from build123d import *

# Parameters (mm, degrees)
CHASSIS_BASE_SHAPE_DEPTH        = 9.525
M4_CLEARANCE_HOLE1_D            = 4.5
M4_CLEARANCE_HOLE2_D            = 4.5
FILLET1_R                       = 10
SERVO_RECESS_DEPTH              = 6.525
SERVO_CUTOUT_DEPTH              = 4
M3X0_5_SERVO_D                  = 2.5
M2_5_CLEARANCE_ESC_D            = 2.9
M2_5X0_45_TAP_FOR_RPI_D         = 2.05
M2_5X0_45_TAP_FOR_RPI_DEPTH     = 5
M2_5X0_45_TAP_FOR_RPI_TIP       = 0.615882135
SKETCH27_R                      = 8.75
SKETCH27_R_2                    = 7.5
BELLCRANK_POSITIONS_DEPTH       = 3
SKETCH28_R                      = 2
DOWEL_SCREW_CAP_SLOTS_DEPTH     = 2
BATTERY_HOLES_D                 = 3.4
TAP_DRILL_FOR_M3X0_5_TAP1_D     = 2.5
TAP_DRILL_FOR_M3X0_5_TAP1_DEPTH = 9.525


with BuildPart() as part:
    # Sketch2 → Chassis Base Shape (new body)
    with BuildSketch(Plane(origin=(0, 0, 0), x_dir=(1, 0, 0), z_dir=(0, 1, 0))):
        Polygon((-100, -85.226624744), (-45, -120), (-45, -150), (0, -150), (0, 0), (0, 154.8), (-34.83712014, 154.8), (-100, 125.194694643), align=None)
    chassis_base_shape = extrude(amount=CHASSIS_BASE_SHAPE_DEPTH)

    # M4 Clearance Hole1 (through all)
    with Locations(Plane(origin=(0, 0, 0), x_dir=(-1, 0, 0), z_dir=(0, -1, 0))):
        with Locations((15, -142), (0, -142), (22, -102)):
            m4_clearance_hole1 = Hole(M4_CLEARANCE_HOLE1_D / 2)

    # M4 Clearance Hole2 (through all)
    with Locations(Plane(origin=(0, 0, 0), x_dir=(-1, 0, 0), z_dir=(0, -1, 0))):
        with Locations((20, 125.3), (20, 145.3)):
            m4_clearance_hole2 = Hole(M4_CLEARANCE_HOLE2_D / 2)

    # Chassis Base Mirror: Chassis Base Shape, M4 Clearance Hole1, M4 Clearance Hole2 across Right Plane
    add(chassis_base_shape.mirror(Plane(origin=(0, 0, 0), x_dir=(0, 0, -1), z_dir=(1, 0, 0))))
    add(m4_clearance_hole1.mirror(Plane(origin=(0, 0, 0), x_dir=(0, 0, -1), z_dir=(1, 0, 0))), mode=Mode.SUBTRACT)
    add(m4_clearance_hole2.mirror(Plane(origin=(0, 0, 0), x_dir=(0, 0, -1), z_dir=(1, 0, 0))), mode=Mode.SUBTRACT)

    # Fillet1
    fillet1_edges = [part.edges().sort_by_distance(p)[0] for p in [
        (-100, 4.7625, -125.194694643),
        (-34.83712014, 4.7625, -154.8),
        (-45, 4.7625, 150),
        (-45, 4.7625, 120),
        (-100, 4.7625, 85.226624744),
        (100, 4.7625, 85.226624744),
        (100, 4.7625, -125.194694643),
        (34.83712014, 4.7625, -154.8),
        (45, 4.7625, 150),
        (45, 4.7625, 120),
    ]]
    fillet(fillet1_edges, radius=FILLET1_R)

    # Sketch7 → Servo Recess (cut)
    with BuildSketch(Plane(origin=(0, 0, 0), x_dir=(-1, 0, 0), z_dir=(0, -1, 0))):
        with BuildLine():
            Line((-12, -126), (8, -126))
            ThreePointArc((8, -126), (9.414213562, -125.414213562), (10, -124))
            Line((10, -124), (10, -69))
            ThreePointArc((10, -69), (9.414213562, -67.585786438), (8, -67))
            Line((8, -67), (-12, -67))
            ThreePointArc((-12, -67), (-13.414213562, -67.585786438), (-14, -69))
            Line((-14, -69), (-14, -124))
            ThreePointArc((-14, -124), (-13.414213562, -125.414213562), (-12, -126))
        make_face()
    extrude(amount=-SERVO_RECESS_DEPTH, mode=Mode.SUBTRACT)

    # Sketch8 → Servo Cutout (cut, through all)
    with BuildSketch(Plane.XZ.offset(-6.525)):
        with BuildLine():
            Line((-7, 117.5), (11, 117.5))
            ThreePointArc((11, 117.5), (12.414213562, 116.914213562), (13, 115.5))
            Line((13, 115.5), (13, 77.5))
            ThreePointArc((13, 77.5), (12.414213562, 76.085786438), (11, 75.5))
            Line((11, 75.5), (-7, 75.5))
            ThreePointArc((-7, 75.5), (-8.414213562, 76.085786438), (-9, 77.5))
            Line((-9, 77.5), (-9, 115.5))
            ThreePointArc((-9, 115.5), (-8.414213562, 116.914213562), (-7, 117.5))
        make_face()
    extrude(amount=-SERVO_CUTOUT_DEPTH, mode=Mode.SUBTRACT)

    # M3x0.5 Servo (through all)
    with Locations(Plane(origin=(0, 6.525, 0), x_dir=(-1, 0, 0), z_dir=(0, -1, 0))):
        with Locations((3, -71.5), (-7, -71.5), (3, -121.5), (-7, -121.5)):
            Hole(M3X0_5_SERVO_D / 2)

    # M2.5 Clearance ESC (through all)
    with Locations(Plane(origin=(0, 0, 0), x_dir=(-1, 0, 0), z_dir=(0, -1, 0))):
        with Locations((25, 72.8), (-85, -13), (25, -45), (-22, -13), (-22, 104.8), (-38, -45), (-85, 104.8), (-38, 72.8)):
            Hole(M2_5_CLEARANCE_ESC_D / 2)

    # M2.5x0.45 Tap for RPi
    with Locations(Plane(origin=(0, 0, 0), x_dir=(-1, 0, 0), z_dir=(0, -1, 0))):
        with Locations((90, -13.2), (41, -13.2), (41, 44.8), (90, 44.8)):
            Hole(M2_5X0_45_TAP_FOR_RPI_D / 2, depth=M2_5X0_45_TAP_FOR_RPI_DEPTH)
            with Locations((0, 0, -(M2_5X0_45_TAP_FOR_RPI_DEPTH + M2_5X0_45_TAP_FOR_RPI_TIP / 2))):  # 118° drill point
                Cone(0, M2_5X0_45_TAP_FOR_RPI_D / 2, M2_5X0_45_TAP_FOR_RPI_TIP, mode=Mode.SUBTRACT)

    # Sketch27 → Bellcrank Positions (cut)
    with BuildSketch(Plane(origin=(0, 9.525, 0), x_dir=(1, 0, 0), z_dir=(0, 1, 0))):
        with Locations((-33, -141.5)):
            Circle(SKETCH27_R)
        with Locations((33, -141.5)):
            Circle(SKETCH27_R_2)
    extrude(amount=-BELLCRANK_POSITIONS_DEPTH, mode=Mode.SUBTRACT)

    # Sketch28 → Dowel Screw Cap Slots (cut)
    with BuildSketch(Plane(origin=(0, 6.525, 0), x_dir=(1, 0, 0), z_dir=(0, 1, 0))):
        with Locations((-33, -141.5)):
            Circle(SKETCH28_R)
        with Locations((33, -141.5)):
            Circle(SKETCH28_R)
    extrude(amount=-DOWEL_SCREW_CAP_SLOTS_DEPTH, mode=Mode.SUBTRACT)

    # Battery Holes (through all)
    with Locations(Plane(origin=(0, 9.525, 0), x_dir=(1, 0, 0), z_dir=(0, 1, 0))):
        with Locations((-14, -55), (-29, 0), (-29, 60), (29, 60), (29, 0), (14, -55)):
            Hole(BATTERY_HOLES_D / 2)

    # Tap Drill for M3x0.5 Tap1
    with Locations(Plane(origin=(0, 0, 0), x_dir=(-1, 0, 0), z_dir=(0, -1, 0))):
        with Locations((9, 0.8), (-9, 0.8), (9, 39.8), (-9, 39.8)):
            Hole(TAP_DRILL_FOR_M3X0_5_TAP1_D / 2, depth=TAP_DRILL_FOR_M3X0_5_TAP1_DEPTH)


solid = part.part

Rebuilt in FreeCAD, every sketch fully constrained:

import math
import FreeCAD as App
import Part
import Sketcher
from FreeCAD import Vector


def edges_at(feature, points):
    """Names of the edges that pass closest to the given points."""
    edges = feature.Shape.Edges
    near = lambda p: min(range(len(edges)), key=lambda i: edges[i].distToShape(Part.Vertex(*p))[0])
    return sorted({f"Edge{near(p) + 1}" for p in points})

doc = App.newDocument("Part")
body = doc.addObject("PartDesign::Body", "Body")

# Sketch on XZ plane
sketch1 = body.newObject("Sketcher::SketchObject", "Sketch")
sketch1.AttachmentSupport = (doc.getObject("XZ_Plane"), [""])
sketch1.MapMode = "FlatFace"
sketch1.addGeometry([
    Part.LineSegment(Vector(-100, 85.226625, 0), Vector(-45, 120, 0)),  # 0
    Part.LineSegment(Vector(-45, 120, 0), Vector(-45, 150, 0)),  # 1
    Part.LineSegment(Vector(-45, 150, 0), Vector(0, 150, 0)),  # 2
    Part.LineSegment(Vector(0, 150, 0), Vector(0, -154.8, 0)),  # 3
    Part.LineSegment(Vector(0, -154.8, 0), Vector(-34.83712, -154.8, 0)),  # 4
    Part.LineSegment(Vector(-34.83712, -154.8, 0), Vector(-100, -125.194695, 0)),  # 5
    Part.LineSegment(Vector(-100, -125.194695, 0), Vector(-100, 85.226625, 0)),  # 6
], False)
sketch1.addConstraint([
    Sketcher.Constraint("Coincident", 0, 2, 1, 1),
    Sketcher.Constraint("Coincident", 1, 2, 2, 1),
    Sketcher.Constraint("Coincident", 2, 2, 3, 1),
    Sketcher.Constraint("Coincident", 3, 2, 4, 1),
    Sketcher.Constraint("Coincident", 4, 2, 5, 1),
    Sketcher.Constraint("Coincident", 5, 2, 6, 1),
    Sketcher.Constraint("Coincident", 6, 2, 0, 1),
    Sketcher.Constraint("Vertical", 1),
    Sketcher.Constraint("Horizontal", 2),
    Sketcher.Constraint("Vertical", 3),
    Sketcher.Constraint("Horizontal", 4),
    Sketcher.Constraint("Vertical", 6),
    Sketcher.Constraint("PointOnObject", 2, 2, -2),
    Sketcher.Constraint("DistanceX", 2, 1, 2, 2, 45.0),
    Sketcher.Constraint("DistanceY", 1, 1, 1, 2, 30.0),
    Sketcher.Constraint("DistanceY", 3, 2, 3, 1, 304.8),
    Sketcher.Constraint("DistanceY", -1, 1, 0, 2, 120.0),
    Sketcher.Constraint("DistanceX", 5, 2, -1, 1, 100.0),
    Sketcher.Constraint("DistanceX", 4, 2, 4, 1, 34.83712),
    Sketcher.Constraint("DistanceY", 6, 1, 6, 2, 210.421319),
    Sketcher.Constraint("Distance", 0, 65.070636),
])
pad1 = body.newObject("PartDesign::Pad", "Pad")
pad1.Profile = sketch1
pad1.Length = 9.525
pad1.Reversed = True

# Sketch on XZ plane
sketch2 = body.newObject("Sketcher::SketchObject", "Sketch001")
sketch2.AttachmentSupport = (doc.getObject("XZ_Plane"), [""])
sketch2.MapMode = "FlatFace"
sketch2.addGeometry([
    Part.Circle(Vector(-15, 142, 0), Vector(0, 0, 1), 2.25),
    Part.Circle(Vector(0, 142, 0), Vector(0, 0, 1), 2.25),
    Part.Circle(Vector(-22, 102, 0), Vector(0, 0, 1), 2.25),
], False)
sketch2.addConstraint([
    Sketcher.Constraint("Equal", 0, 1),
    Sketcher.Constraint("Equal", 1, 2),
    Sketcher.Constraint("PointOnObject", 1, 3, -2),
    Sketcher.Constraint("Horizontal", 0, 3, 1, 3),
    Sketcher.Constraint("Diameter", 0, 4.5),
    Sketcher.Constraint("DistanceX", 0, 3, -1, 1, 15.0),
    Sketcher.Constraint("DistanceY", -1, 1, 0, 3, 142.0),
    Sketcher.Constraint("DistanceX", 2, 3, -1, 1, 22.0),
    Sketcher.Constraint("DistanceY", -1, 1, 2, 3, 102.0),
])
doc.recompute()
hole = body.newObject("PartDesign::Hole", "Hole")
hole.Profile = sketch2
hole.ThreadType = "None"
hole.Diameter = 4.5
hole.DepthType = "ThroughAll"

# Sketch on XZ plane
sketch3 = body.newObject("Sketcher::SketchObject", "Sketch002")
sketch3.AttachmentSupport = (doc.getObject("XZ_Plane"), [""])
sketch3.MapMode = "FlatFace"
sketch3.addGeometry([
    Part.Circle(Vector(-20, -125.3, 0), Vector(0, 0, 1), 2.25),
    Part.Circle(Vector(-20, -145.3, 0), Vector(0, 0, 1), 2.25),
], False)
sketch3.addConstraint([
    Sketcher.Constraint("Equal", 0, 1),
    Sketcher.Constraint("Vertical", 0, 3, 1, 3),
    Sketcher.Constraint("Diameter", 0, 4.5),
    Sketcher.Constraint("DistanceX", 0, 3, -1, 1, 20.0),
    Sketcher.Constraint("DistanceY", 1, 3, 0, 3, 20.0),
    Sketcher.Constraint("DistanceY", 0, 3, -1, 1, 125.3),
])
doc.recompute()
hole2 = body.newObject("PartDesign::Hole", "Hole001")
hole2.Profile = sketch3
hole2.ThreadType = "None"
hole2.Diameter = 4.5
hole2.DepthType = "ThroughAll"
doc.recompute()

mirrored = body.newObject("PartDesign::Mirrored", "Mirrored")
mirrored.Originals = [pad1, hole, hole2]
mirrored.MirrorPlane = (doc.getObject("YZ_Plane"), [""])
body.Tip = mirrored
doc.recompute()

fillet = body.newObject("PartDesign::Fillet", "Fillet")
fillet.Base = (mirrored, edges_at(mirrored, [
    (-100, 4.763, -125.195),
    (-34.837, 4.763, -154.8),
    (-45, 4.763, 150),
    (-45, 4.763, 120),
    (-100, 4.763, 85.227),
    (100, 4.763, 85.227),
    (100, 4.763, -125.195),
    (34.837, 4.763, -154.8),
    (45, 4.763, 150),
    (45, 4.763, 120),
]))
fillet.Radius = 10

# Sketch on XZ plane
sketch4 = body.newObject("Sketcher::SketchObject", "Sketch003")
sketch4.AttachmentSupport = (doc.getObject("XZ_Plane"), [""])
sketch4.MapMode = "FlatFace"
sketch4.addGeometry([
    Part.LineSegment(Vector(12, 126, 0), Vector(-8, 126, 0)),  # 0
    Part.ArcOfCircle(Part.Circle(Vector(-8, 124, 0), Vector(0, 0, 1), 2), math.radians(90), math.radians(180)),  # 1
    Part.LineSegment(Vector(-10, 124, 0), Vector(-10, 69, 0)),  # 2
    Part.ArcOfCircle(Part.Circle(Vector(-8, 69, 0), Vector(0, 0, 1), 2), math.radians(-180), math.radians(-90)),  # 3
    Part.LineSegment(Vector(-8, 67, 0), Vector(12, 67, 0)),  # 4
    Part.ArcOfCircle(Part.Circle(Vector(12, 69, 0), Vector(0, 0, 1), 2), math.radians(-90), math.radians(0)),  # 5
    Part.LineSegment(Vector(14, 69, 0), Vector(14, 124, 0)),  # 6
    Part.ArcOfCircle(Part.Circle(Vector(12, 124, 0), Vector(0, 0, 1), 2), math.radians(0), math.radians(90)),  # 7
], False)
sketch4.addConstraint([
    Sketcher.Constraint("Tangent", 0, 2, 1, 1),
    Sketcher.Constraint("Tangent", 1, 2, 2, 1),
    Sketcher.Constraint("Tangent", 2, 2, 3, 1),
    Sketcher.Constraint("Tangent", 3, 2, 4, 1),
    Sketcher.Constraint("Tangent", 4, 2, 5, 1),
    Sketcher.Constraint("Tangent", 5, 2, 6, 1),
    Sketcher.Constraint("Tangent", 6, 2, 7, 1),
    Sketcher.Constraint("Tangent", 7, 2, 0, 1),
    Sketcher.Constraint("Horizontal", 0),
    Sketcher.Constraint("Vertical", 2),
    Sketcher.Constraint("Horizontal", 4),
    Sketcher.Constraint("Vertical", 6),
    Sketcher.Constraint("Equal", 1, 3),
    Sketcher.Constraint("Equal", 3, 5),
    Sketcher.Constraint("Equal", 5, 7),
    Sketcher.Constraint("Radius", 1, 2.0),
    Sketcher.Constraint("DistanceX", 0, 2, 0, 1, 20.0),
    Sketcher.Constraint("DistanceY", 2, 2, 2, 1, 55.0),
    Sketcher.Constraint("DistanceX", 1, 3, -1, 1, 8.0),
    Sketcher.Constraint("DistanceY", -1, 1, 1, 3, 124.0),
])
pocket1 = body.newObject("PartDesign::Pocket", "Pocket")
pocket1.Profile = sketch4
pocket1.Length = 6.525

# Sketch on XZ plane
sketch5 = body.newObject("Sketcher::SketchObject", "Sketch004")
sketch5.AttachmentSupport = (doc.getObject("XZ_Plane"), [""])
sketch5.MapMode = "FlatFace"
sketch5.AttachmentOffset = App.Placement(Vector(0, 0, -6.525), App.Rotation())
sketch5.addGeometry([
    Part.LineSegment(Vector(11, 117.5, 0), Vector(-7, 117.5, 0)),  # 0
    Part.ArcOfCircle(Part.Circle(Vector(-7, 115.5, 0), Vector(0, 0, 1), 2), math.radians(90), math.radians(180)),  # 1
    Part.LineSegment(Vector(-9, 115.5, 0), Vector(-9, 77.5, 0)),  # 2
    Part.ArcOfCircle(Part.Circle(Vector(-7, 77.5, 0), Vector(0, 0, 1), 2), math.radians(-180), math.radians(-90)),  # 3
    Part.LineSegment(Vector(-7, 75.5, 0), Vector(11, 75.5, 0)),  # 4
    Part.ArcOfCircle(Part.Circle(Vector(11, 77.5, 0), Vector(0, 0, 1), 2), math.radians(-90), math.radians(0)),  # 5
    Part.LineSegment(Vector(13, 77.5, 0), Vector(13, 115.5, 0)),  # 6
    Part.ArcOfCircle(Part.Circle(Vector(11, 115.5, 0), Vector(0, 0, 1), 2), math.radians(0), math.radians(90)),  # 7
], False)
sketch5.addConstraint([
    Sketcher.Constraint("Tangent", 0, 2, 1, 1),
    Sketcher.Constraint("Tangent", 1, 2, 2, 1),
    Sketcher.Constraint("Tangent", 2, 2, 3, 1),
    Sketcher.Constraint("Tangent", 3, 2, 4, 1),
    Sketcher.Constraint("Tangent", 4, 2, 5, 1),
    Sketcher.Constraint("Tangent", 5, 2, 6, 1),
    Sketcher.Constraint("Tangent", 6, 2, 7, 1),
    Sketcher.Constraint("Tangent", 7, 2, 0, 1),
    Sketcher.Constraint("Horizontal", 0),
    Sketcher.Constraint("Vertical", 2),
    Sketcher.Constraint("Horizontal", 4),
    Sketcher.Constraint("Vertical", 6),
    Sketcher.Constraint("Equal", 1, 3),
    Sketcher.Constraint("Equal", 3, 5),
    Sketcher.Constraint("Equal", 5, 7),
    Sketcher.Constraint("Radius", 1, 2.0),
    Sketcher.Constraint("DistanceX", 0, 2, 0, 1, 18.0),
    Sketcher.Constraint("DistanceY", 2, 2, 2, 1, 38.0),
    Sketcher.Constraint("DistanceX", 1, 3, -1, 1, 7.0),
    Sketcher.Constraint("DistanceY", -1, 1, 1, 3, 115.5),
])
pocket2 = body.newObject("PartDesign::Pocket", "Pocket001")
pocket2.Profile = sketch5
pocket2.Type = "ThroughAll"

# Sketch on XZ plane
sketch6 = body.newObject("Sketcher::SketchObject", "Sketch005")
sketch6.AttachmentSupport = (doc.getObject("XZ_Plane"), [""])
sketch6.MapMode = "FlatFace"
sketch6.AttachmentOffset = App.Placement(Vector(0, 0, -6.525), App.Rotation())
sketch6.addGeometry([
    Part.Circle(Vector(-3, 71.5, 0), Vector(0, 0, 1), 1.25),
    Part.Circle(Vector(7, 71.5, 0), Vector(0, 0, 1), 1.25),
    Part.Circle(Vector(-3, 121.5, 0), Vector(0, 0, 1), 1.25),
    Part.Circle(Vector(7, 121.5, 0), Vector(0, 0, 1), 1.25),
], False)
sketch6.addConstraint([
    Sketcher.Constraint("Equal", 0, 1),
    Sketcher.Constraint("Equal", 1, 2),
    Sketcher.Constraint("Equal", 2, 3),
    Sketcher.Constraint("Horizontal", 0, 3, 1, 3),
    Sketcher.Constraint("Horizontal", 2, 3, 3, 3),
    Sketcher.Constraint("Vertical", 0, 3, 2, 3),
    Sketcher.Constraint("Vertical", 1, 3, 3, 3),
    Sketcher.Constraint("Diameter", 0, 2.5),
    Sketcher.Constraint("DistanceX", 0, 3, -1, 1, 3.0),
    Sketcher.Constraint("DistanceX", -1, 1, 1, 3, 7.0),
    Sketcher.Constraint("DistanceY", 0, 3, 2, 3, 50.0),
    Sketcher.Constraint("DistanceY", -1, 1, 0, 3, 71.5),
])
doc.recompute()
hole3 = body.newObject("PartDesign::Hole", "Hole002")
hole3.Profile = sketch6
hole3.ThreadType = "None"
hole3.Diameter = 2.5
hole3.DepthType = "ThroughAll"

# Sketch on XZ plane
sketch7 = body.newObject("Sketcher::SketchObject", "Sketch006")
sketch7.AttachmentSupport = (doc.getObject("XZ_Plane"), [""])
sketch7.MapMode = "FlatFace"
sketch7.addGeometry([
    Part.Circle(Vector(-25, -72.8, 0), Vector(0, 0, 1), 1.45),  # 0
    Part.Circle(Vector(85, 13, 0), Vector(0, 0, 1), 1.45),  # 1
    Part.Circle(Vector(-25, 45, 0), Vector(0, 0, 1), 1.45),  # 2
    Part.Circle(Vector(22, 13, 0), Vector(0, 0, 1), 1.45),  # 3
    Part.Circle(Vector(22, -104.8, 0), Vector(0, 0, 1), 1.45),  # 4
    Part.Circle(Vector(38, 45, 0), Vector(0, 0, 1), 1.45),  # 5
    Part.Circle(Vector(85, -104.8, 0), Vector(0, 0, 1), 1.45),  # 6
    Part.Circle(Vector(38, -72.8, 0), Vector(0, 0, 1), 1.45),  # 7
], False)
sketch7.addConstraint([
    Sketcher.Constraint("Equal", 0, 1),
    Sketcher.Constraint("Equal", 1, 2),
    Sketcher.Constraint("Equal", 2, 3),
    Sketcher.Constraint("Equal", 3, 4),
    Sketcher.Constraint("Equal", 4, 5),
    Sketcher.Constraint("Equal", 5, 6),
    Sketcher.Constraint("Equal", 6, 7),
    Sketcher.Constraint("Horizontal", 1, 3, 3, 3),
    Sketcher.Constraint("Horizontal", 2, 3, 5, 3),
    Sketcher.Constraint("Horizontal", 4, 3, 6, 3),
    Sketcher.Constraint("Horizontal", 0, 3, 7, 3),
    Sketcher.Constraint("Vertical", 0, 3, 2, 3),
    Sketcher.Constraint("Vertical", 3, 3, 4, 3),
    Sketcher.Constraint("Vertical", 1, 3, 6, 3),
    Sketcher.Constraint("Vertical", 5, 3, 7, 3),
    Sketcher.Constraint("Diameter", 0, 2.9),
    Sketcher.Constraint("DistanceX", 0, 3, -1, 1, 25.0),
    Sketcher.Constraint("DistanceX", -1, 1, 1, 3, 85.0),
    Sketcher.Constraint("DistanceY", -1, 1, 1, 3, 13.0),
    Sketcher.Constraint("DistanceY", -1, 1, 2, 3, 45.0),
    Sketcher.Constraint("DistanceX", -1, 1, 3, 3, 22.0),
    Sketcher.Constraint("DistanceX", -1, 1, 5, 3, 38.0),
    Sketcher.Constraint("DistanceY", 4, 3, 0, 3, 32.0),
    Sketcher.Constraint("DistanceY", 0, 3, -1, 1, 72.8),
])
doc.recompute()
hole4 = body.newObject("PartDesign::Hole", "Hole003")
hole4.Profile = sketch7
hole4.ThreadType = "None"
hole4.Diameter = 2.9
hole4.DepthType = "ThroughAll"

# Sketch on XZ plane
sketch8 = body.newObject("Sketcher::SketchObject", "Sketch007")
sketch8.AttachmentSupport = (doc.getObject("XZ_Plane"), [""])
sketch8.MapMode = "FlatFace"
sketch8.addGeometry([
    Part.Circle(Vector(-90, 13.2, 0), Vector(0, 0, 1), 1.025),
    Part.Circle(Vector(-41, 13.2, 0), Vector(0, 0, 1), 1.025),
    Part.Circle(Vector(-41, -44.8, 0), Vector(0, 0, 1), 1.025),
    Part.Circle(Vector(-90, -44.8, 0), Vector(0, 0, 1), 1.025),
], False)
sketch8.addConstraint([
    Sketcher.Constraint("Equal", 0, 1),
    Sketcher.Constraint("Equal", 1, 2),
    Sketcher.Constraint("Equal", 2, 3),
    Sketcher.Constraint("Horizontal", 0, 3, 1, 3),
    Sketcher.Constraint("Horizontal", 2, 3, 3, 3),
    Sketcher.Constraint("Vertical", 1, 3, 2, 3),
    Sketcher.Constraint("Vertical", 0, 3, 3, 3),
    Sketcher.Constraint("Diameter", 0, 2.05),
    Sketcher.Constraint("DistanceX", 0, 3, -1, 1, 90.0),
    Sketcher.Constraint("DistanceX", 1, 3, -1, 1, 41.0),
    Sketcher.Constraint("DistanceY", 2, 3, 1, 3, 58.0),
    Sketcher.Constraint("DistanceY", -1, 1, 0, 3, 13.2),
])
doc.recompute()
hole5 = body.newObject("PartDesign::Hole", "Hole004")
hole5.Profile = sketch8
hole5.ThreadType = "None"
hole5.Diameter = 2.05
hole5.DepthType = "Dimension"
hole5.Depth = 5
hole5.DrillPoint = "Angled"
hole5.DrillPointAngle = 118

# Sketch on XZ plane
sketch9 = body.newObject("Sketcher::SketchObject", "Sketch008")
sketch9.AttachmentSupport = (doc.getObject("XZ_Plane"), [""])
sketch9.MapMode = "FlatFace"
sketch9.AttachmentOffset = App.Placement(Vector(0, 0, -9.525), App.Rotation())
sketch9.addGeometry([
    Part.Circle(Vector(-33, 141.5, 0), Vector(0, 0, 1), 8.75),
    Part.Circle(Vector(33, 141.5, 0), Vector(0, 0, 1), 7.5),
], False)
sketch9.addConstraint([
    Sketcher.Constraint("Symmetric", 0, 3, 1, 3, -2),
    Sketcher.Constraint("Diameter", 1, 15.0),
    Sketcher.Constraint("Diameter", 0, 17.5),
    Sketcher.Constraint("DistanceX", 0, 3, -1, 1, 33.0),
    Sketcher.Constraint("DistanceY", -1, 1, 0, 3, 141.5),
])
pocket3 = body.newObject("PartDesign::Pocket", "Pocket002")
pocket3.Profile = sketch9
pocket3.Length = 3
pocket3.Reversed = True

# Sketch on XZ plane
sketch10 = body.newObject("Sketcher::SketchObject", "Sketch009")
sketch10.AttachmentSupport = (doc.getObject("XZ_Plane"), [""])
sketch10.MapMode = "FlatFace"
sketch10.AttachmentOffset = App.Placement(Vector(0, 0, -6.525), App.Rotation())
sketch10.addGeometry([
    Part.Circle(Vector(-33, 141.5, 0), Vector(0, 0, 1), 2),
    Part.Circle(Vector(33, 141.5, 0), Vector(0, 0, 1), 2),
], False)
sketch10.addConstraint([
    Sketcher.Constraint("Equal", 0, 1),
    Sketcher.Constraint("Symmetric", 0, 3, 1, 3, -2),
    Sketcher.Constraint("Diameter", 0, 4.0),
    Sketcher.Constraint("DistanceX", 0, 3, -1, 1, 33.0),
    Sketcher.Constraint("DistanceY", -1, 1, 0, 3, 141.5),
])
pocket4 = body.newObject("PartDesign::Pocket", "Pocket003")
pocket4.Profile = sketch10
pocket4.Length = 2
pocket4.Reversed = True

# Sketch on XZ plane
sketch11 = body.newObject("Sketcher::SketchObject", "Sketch010")
sketch11.AttachmentSupport = (doc.getObject("XZ_Plane"), [""])
sketch11.MapMode = "FlatFace"
sketch11.AttachmentOffset = App.Placement(Vector(0, 0, -9.525), App.Rotation())
sketch11.addGeometry([
    Part.Circle(Vector(-14, 55, 0), Vector(0, 0, 1), 1.7),  # 0
    Part.Circle(Vector(-29, 0, 0), Vector(0, 0, 1), 1.7),  # 1
    Part.Circle(Vector(-29, -60, 0), Vector(0, 0, 1), 1.7),  # 2
    Part.Circle(Vector(29, -60, 0), Vector(0, 0, 1), 1.7),  # 3
    Part.Circle(Vector(29, 0, 0), Vector(0, 0, 1), 1.7),  # 4
    Part.Circle(Vector(14, 55, 0), Vector(0, 0, 1), 1.7),  # 5
], False)
sketch11.addConstraint([
    Sketcher.Constraint("Equal", 0, 1),
    Sketcher.Constraint("Equal", 1, 2),
    Sketcher.Constraint("Equal", 2, 3),
    Sketcher.Constraint("Equal", 3, 4),
    Sketcher.Constraint("Equal", 4, 5),
    Sketcher.Constraint("Symmetric", 1, 3, 4, 3, -1, 1),
    Sketcher.Constraint("Symmetric", 2, 3, 3, 3, -2),
    Sketcher.Constraint("Symmetric", 0, 3, 5, 3, -2),
    Sketcher.Constraint("PointOnObject", 1, 3, -1),
    Sketcher.Constraint("Vertical", 1, 3, 2, 3),
    Sketcher.Constraint("Diameter", 0, 3.4),
    Sketcher.Constraint("DistanceX", 0, 3, -1, 1, 14.0),
    Sketcher.Constraint("DistanceY", -1, 1, 0, 3, 55.0),
    Sketcher.Constraint("DistanceX", 1, 3, -1, 1, 29.0),
    Sketcher.Constraint("DistanceY", 2, 3, -1, 1, 60.0),
])
doc.recompute()
hole6 = body.newObject("PartDesign::Hole", "Hole005")
hole6.Profile = sketch11
hole6.ThreadType = "None"
hole6.Diameter = 3.4
hole6.DepthType = "ThroughAll"
hole6.Reversed = True

# Sketch on XZ plane
sketch12 = body.newObject("Sketcher::SketchObject", "Sketch011")
sketch12.AttachmentSupport = (doc.getObject("XZ_Plane"), [""])
sketch12.MapMode = "FlatFace"
sketch12.addGeometry([
    Part.Circle(Vector(-9, -0.8, 0), Vector(0, 0, 1), 1.25),
    Part.Circle(Vector(9, -0.8, 0), Vector(0, 0, 1), 1.25),
    Part.Circle(Vector(-9, -39.8, 0), Vector(0, 0, 1), 1.25),
    Part.Circle(Vector(9, -39.8, 0), Vector(0, 0, 1), 1.25),
], False)
sketch12.addConstraint([
    Sketcher.Constraint("Equal", 0, 1),
    Sketcher.Constraint("Equal", 1, 2),
    Sketcher.Constraint("Equal", 2, 3),
    Sketcher.Constraint("Symmetric", 0, 3, 1, 3, -2),
    Sketcher.Constraint("Symmetric", 2, 3, 3, 3, -2),
    Sketcher.Constraint("Vertical", 0, 3, 2, 3),
    Sketcher.Constraint("Diameter", 0, 2.5),
    Sketcher.Constraint("DistanceX", 0, 3, -1, 1, 9.0),
    Sketcher.Constraint("DistanceY", 2, 3, 0, 3, 39.0),
    Sketcher.Constraint("DistanceY", 0, 3, -1, 1, 0.8),
])
doc.recompute()
hole7 = body.newObject("PartDesign::Hole", "Hole006")
hole7.Profile = sketch12
hole7.ThreadType = "None"
hole7.Diameter = 2.5
hole7.DepthType = "Dimension"
hole7.Depth = 9.525
hole7.DrillPoint = "Flat"

doc.recompute()
